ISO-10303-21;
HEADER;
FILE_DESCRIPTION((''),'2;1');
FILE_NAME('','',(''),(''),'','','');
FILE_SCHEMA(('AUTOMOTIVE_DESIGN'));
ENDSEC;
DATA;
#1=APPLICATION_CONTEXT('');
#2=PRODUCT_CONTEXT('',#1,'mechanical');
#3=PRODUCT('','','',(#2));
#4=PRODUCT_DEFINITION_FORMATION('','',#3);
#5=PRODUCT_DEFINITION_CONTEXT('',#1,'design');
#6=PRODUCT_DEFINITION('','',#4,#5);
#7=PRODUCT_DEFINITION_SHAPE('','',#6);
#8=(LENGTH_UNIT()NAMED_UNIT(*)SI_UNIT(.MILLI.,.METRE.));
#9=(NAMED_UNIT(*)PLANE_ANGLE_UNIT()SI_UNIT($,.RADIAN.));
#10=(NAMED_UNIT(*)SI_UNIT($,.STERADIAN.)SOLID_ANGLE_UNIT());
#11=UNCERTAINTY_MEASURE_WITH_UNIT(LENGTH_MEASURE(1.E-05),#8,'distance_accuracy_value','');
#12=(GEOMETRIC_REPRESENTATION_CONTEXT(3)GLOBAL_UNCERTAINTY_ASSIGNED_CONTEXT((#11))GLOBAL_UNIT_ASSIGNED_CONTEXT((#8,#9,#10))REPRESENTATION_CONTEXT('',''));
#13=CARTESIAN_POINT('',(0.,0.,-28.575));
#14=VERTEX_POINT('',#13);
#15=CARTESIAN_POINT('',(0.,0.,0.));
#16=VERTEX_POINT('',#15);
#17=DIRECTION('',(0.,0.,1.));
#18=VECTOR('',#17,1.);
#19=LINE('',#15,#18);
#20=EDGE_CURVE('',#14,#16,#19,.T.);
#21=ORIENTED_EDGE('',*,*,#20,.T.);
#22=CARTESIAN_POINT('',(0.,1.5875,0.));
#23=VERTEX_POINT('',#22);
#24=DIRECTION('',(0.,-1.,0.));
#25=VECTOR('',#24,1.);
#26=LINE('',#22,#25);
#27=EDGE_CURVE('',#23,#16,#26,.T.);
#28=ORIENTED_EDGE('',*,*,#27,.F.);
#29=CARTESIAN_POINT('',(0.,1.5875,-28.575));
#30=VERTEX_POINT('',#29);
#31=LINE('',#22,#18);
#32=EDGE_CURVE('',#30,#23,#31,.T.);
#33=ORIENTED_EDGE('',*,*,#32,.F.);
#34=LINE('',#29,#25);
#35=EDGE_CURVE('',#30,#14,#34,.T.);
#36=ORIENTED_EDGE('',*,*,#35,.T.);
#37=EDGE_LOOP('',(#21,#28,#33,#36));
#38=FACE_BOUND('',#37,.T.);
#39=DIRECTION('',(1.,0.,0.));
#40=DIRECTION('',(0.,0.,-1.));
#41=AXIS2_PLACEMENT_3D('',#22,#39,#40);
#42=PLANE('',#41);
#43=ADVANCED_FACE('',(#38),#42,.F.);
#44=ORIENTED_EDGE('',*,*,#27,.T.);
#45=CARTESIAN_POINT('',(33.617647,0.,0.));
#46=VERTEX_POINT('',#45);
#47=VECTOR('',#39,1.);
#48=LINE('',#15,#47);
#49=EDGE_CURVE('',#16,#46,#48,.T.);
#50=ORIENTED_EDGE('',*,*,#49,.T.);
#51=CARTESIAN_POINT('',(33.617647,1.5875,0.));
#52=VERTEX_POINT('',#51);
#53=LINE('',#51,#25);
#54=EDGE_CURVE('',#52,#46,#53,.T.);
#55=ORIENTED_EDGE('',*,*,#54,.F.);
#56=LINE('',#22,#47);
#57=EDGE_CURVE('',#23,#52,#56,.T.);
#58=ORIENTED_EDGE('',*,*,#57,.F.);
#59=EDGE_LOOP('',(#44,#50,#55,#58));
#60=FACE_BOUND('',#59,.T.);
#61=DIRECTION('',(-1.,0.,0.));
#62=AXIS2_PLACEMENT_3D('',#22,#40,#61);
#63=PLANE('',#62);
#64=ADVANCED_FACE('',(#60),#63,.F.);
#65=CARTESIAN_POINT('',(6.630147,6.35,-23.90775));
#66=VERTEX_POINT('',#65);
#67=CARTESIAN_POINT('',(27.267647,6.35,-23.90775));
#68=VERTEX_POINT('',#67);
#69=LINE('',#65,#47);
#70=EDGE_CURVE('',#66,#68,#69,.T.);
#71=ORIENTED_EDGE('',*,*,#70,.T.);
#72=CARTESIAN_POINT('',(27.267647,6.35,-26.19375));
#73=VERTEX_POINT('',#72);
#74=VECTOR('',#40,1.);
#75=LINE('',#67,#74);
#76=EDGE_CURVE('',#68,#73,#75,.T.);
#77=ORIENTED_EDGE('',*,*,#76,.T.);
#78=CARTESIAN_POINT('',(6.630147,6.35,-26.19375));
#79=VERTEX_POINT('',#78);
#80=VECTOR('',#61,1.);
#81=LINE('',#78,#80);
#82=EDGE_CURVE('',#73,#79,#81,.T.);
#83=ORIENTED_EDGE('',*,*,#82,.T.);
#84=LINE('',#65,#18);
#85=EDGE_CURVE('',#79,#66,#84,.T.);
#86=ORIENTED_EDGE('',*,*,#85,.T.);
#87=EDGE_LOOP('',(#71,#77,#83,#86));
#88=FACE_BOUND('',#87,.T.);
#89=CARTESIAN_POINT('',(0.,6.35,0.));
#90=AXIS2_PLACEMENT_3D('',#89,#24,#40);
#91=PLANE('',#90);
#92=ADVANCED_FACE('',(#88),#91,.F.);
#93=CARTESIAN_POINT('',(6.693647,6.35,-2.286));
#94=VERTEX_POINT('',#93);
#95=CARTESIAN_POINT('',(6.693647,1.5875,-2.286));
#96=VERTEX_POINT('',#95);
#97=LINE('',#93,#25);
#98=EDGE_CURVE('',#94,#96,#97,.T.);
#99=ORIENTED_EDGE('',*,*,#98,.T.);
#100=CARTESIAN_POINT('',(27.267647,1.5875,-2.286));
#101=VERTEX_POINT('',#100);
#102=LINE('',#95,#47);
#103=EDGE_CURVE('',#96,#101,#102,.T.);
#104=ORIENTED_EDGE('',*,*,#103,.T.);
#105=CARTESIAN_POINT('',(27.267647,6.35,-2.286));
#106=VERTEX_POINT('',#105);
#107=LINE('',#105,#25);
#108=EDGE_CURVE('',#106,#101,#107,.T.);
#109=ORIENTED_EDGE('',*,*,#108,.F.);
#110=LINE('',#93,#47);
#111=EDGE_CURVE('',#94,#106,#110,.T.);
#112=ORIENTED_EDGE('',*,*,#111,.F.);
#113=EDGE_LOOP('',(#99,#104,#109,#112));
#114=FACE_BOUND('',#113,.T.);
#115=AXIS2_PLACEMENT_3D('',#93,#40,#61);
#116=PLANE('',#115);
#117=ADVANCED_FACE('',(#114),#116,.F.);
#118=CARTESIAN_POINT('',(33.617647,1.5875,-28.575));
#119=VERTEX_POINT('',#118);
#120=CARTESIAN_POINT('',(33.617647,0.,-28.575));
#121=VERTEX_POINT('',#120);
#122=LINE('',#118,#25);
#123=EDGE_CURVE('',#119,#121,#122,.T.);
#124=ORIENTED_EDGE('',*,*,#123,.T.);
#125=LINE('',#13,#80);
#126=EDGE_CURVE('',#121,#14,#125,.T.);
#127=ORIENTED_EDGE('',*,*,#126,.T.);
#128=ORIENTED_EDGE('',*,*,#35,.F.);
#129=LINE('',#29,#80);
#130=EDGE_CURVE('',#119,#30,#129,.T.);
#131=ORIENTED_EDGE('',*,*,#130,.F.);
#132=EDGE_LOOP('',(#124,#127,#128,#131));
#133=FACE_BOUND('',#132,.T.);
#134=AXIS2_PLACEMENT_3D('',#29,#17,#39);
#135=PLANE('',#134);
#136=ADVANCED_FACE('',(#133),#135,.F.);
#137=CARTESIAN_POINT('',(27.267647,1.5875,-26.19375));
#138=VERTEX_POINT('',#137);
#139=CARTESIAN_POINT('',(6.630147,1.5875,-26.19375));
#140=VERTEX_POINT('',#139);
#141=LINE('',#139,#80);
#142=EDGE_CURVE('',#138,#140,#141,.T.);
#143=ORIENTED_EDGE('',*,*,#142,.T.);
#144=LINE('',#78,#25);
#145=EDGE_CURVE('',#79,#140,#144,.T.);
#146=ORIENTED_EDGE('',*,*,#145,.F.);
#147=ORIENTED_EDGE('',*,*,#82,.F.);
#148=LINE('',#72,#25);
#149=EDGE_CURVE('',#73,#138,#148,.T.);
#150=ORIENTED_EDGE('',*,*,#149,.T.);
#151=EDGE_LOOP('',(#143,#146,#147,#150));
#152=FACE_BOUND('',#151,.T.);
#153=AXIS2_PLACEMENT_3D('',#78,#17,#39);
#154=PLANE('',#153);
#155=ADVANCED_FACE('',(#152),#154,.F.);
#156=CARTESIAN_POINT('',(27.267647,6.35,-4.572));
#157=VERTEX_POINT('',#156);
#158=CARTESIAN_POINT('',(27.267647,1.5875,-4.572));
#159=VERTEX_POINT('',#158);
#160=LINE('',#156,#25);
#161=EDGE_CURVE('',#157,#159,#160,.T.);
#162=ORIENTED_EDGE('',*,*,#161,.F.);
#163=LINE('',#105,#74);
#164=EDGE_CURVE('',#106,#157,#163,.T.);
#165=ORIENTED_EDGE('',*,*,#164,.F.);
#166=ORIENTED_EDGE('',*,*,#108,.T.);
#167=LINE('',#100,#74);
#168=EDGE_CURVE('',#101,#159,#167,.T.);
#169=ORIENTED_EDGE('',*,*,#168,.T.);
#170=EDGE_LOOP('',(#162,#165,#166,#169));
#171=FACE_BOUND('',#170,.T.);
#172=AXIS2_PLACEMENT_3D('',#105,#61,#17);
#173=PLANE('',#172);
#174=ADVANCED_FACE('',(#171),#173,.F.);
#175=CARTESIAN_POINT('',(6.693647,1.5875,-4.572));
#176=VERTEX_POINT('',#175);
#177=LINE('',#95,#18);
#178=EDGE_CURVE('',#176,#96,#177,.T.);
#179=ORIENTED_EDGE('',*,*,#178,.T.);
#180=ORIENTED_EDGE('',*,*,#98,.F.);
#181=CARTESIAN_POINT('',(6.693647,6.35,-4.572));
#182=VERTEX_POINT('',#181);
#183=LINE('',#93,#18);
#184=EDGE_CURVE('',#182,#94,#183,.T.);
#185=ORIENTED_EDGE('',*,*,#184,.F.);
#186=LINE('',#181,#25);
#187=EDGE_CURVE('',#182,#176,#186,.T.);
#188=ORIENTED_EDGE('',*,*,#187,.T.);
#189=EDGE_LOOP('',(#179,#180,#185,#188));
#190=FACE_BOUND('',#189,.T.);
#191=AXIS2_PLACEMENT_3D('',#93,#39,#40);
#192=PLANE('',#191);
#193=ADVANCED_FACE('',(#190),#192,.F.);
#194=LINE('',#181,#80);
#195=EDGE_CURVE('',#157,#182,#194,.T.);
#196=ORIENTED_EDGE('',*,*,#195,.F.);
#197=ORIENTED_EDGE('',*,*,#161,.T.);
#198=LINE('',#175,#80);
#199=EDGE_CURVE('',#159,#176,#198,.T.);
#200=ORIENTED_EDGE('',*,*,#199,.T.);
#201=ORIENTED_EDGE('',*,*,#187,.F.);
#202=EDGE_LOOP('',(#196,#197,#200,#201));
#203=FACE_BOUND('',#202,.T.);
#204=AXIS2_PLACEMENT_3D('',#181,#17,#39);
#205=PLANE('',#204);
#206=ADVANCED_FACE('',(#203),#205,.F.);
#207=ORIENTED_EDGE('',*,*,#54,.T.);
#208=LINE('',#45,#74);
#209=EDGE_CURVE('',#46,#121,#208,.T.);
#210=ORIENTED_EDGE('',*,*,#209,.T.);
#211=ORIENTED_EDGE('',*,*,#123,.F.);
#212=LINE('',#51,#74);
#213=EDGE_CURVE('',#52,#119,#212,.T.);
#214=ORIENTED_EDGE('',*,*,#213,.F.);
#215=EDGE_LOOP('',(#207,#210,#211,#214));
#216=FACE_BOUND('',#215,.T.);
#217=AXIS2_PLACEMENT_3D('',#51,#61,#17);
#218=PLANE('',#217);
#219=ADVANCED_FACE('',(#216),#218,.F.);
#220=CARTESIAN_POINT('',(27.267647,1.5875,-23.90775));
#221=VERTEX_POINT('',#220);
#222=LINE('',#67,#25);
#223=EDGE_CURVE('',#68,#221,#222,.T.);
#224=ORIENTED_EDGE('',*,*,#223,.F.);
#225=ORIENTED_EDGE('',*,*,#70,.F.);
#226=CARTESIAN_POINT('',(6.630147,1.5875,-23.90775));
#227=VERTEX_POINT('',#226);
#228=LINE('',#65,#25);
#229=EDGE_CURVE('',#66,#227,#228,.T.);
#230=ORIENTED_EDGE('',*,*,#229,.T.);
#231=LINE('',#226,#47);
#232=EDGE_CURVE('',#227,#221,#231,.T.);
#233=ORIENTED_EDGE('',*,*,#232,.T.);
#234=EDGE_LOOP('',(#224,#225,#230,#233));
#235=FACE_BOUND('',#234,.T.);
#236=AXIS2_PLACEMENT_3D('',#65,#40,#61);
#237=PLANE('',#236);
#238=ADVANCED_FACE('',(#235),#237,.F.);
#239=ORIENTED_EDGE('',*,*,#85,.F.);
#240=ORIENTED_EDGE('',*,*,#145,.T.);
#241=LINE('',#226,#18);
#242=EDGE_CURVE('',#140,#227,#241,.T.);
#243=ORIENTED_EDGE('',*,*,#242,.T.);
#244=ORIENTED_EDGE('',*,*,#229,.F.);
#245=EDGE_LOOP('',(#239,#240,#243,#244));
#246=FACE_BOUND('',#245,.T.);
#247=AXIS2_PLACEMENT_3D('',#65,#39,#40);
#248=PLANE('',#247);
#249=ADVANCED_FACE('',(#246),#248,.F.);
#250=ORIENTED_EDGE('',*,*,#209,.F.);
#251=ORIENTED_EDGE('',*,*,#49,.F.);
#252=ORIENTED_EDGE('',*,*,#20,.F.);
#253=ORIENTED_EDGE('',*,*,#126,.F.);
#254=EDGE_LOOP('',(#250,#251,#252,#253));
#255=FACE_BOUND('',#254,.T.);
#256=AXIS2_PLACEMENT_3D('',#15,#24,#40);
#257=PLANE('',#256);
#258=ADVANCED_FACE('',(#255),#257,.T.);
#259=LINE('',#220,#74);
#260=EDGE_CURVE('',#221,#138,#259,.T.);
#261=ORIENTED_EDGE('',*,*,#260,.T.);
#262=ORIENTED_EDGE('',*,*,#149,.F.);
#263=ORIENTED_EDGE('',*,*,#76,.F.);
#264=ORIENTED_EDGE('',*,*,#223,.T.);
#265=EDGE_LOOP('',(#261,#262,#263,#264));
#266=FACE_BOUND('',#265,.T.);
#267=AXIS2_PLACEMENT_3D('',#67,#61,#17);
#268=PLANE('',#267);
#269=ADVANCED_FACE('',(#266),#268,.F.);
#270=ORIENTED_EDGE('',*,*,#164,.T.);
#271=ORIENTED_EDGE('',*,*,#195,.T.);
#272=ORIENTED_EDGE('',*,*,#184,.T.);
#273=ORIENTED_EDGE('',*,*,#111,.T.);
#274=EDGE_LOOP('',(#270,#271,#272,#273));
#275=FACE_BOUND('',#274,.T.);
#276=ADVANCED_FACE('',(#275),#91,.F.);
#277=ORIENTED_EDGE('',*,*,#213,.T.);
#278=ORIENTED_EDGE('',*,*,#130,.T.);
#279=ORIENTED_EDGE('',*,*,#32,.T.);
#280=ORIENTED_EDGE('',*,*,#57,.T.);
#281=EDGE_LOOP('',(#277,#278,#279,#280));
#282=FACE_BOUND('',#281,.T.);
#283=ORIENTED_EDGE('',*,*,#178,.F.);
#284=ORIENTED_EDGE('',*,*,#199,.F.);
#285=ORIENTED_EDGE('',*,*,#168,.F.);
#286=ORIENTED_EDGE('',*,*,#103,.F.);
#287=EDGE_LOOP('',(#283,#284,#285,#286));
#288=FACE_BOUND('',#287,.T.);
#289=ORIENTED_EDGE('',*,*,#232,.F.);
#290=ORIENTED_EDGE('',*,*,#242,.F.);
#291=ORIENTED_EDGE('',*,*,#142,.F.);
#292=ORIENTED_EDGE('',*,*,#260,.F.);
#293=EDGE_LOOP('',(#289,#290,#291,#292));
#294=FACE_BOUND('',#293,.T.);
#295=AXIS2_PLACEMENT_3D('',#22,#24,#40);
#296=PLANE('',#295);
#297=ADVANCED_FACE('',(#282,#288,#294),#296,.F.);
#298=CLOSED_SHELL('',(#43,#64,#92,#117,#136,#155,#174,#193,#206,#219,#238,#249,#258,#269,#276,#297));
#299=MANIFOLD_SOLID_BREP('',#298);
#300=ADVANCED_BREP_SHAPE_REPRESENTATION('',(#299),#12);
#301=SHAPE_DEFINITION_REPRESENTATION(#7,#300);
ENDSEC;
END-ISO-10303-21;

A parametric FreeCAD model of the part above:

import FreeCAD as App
import Part
import Sketcher

V = App.Vector
Q = App.Units.Quantity


def add_polygon(sketch, points):
    """Adds a closed chain of lines whose ends are joined by coincident constraints."""
    first, n = sketch.GeometryCount, len(points)
    for a, b in zip(points, points[1:] + points[:1]):
        sketch.addGeometry(Part.LineSegment(App.Vector(*a, 0), App.Vector(*b, 0)), False)
    for i in range(n):
        sketch.addConstraint(Sketcher.Constraint("Coincident", first + i, 2, first + (i + 1) % n, 1))

doc = App.newDocument("Part")
params = doc.addObject("Spreadsheet::Sheet", "Params")
for row, (alias, value) in enumerate([
    ("sketch1_height", "1.125 in"),
    ("pad1_length", "0.0625 in"),
    ("sketch2_width", "0.81 in"),
    ("sketch2_height", "0.09 in"),
    ("sketch2_width2", "0.8125 in"),
    ("pad2_length", "0.1875 in"),
], start=1):
    params.set(f"A{row}", alias)
    params.set(f"B{row}", "=" + value)
    params.setAlias(f"B{row}", alias)

body = doc.addObject("PartDesign::Body", "Body")

sketch1 = body.newObject("Sketcher::SketchObject", "Sketch")
sketch1.AttachmentSupport = (doc.getObject("XZ_Plane"), [""])
sketch1.MapMode = "FlatFace"
add_polygon(sketch1, [(0, -29), (0, 0), (34, 0), (34, -29)])
sketch1.addConstraint([
    Sketcher.Constraint("Vertical", 0),
    Sketcher.Constraint("Horizontal", 1),
    Sketcher.Constraint("Vertical", 2),
    Sketcher.Constraint("Horizontal", 3),
    Sketcher.Constraint("Coincident", 0, 2, -1, 1),
    Sketcher.Constraint("DistanceY", 0, 1, 0, 2, Q("1.125 in")),
    Sketcher.Constraint("DistanceX", 1, 1, 1, 2, Q("33.617647 mm")),
])
sketch1.setExpression("Constraints[9]", "Params.sketch1_height")
pad1 = body.newObject("PartDesign::Pad", "Pad")
pad1.Profile = sketch1
pad1.setExpression("Length", "Params.pad1_length")
pad1.Reversed = True

sketch2 = body.newObject("Sketcher::SketchObject", "Sketch001")
sketch2.AttachmentSupport = (doc.getObject("XZ_Plane"), [""])
sketch2.MapMode = "FlatFace"
sketch2.AttachmentOffset = App.Placement(V(0, 0, -0.0625 * 25.4), App.Rotation())
add_polygon(sketch2, [(6.7, -4.6), (6.7, -2.3), (27.3, -2.3), (27.3, -4.6)])
add_polygon(sketch2, [(6.6, -26.2), (6.6, -23.9), (27.3, -23.9), (27.3, -26.2)])
sketch2.addConstraint([
    Sketcher.Constraint("Vertical", 0),
    Sketcher.Constraint("Horizontal", 1),
    Sketcher.Constraint("Vertical", 2),
    Sketcher.Constraint("Horizontal", 3),
    Sketcher.Constraint("Vertical", 4),
    Sketcher.Constraint("Horizontal", 5),
    Sketcher.Constraint("Vertical", 6),
    Sketcher.Constraint("Horizontal", 7),
    Sketcher.Constraint("Vertical", 2, 2, 5, 2),
    Sketcher.Constraint("Equal", 2, 4),
    Sketcher.Constraint("DistanceX", 1, 1, 1, 2, Q("0.81 in")),
    Sketcher.Constraint("DistanceY", 0, 1, 0, 2, Q("0.09 in")),
    Sketcher.Constraint("DistanceX", 5, 1, 5, 2, Q("0.8125 in")),
    Sketcher.Constraint("DistanceY", 0, 2, -1, 1, Q("0.09 in")),
    Sketcher.Constraint("DistanceY", 6, 2, -1, 1, Q("1.03125 in")),
    Sketcher.Constraint("DistanceX", -1, 1, 0, 2, Q("6.693647 mm")),
])
sketch2.setExpression("Constraints[18]", "Params.sketch2_width")
sketch2.setExpression("Constraints[19]", "Params.sketch2_height")
sketch2.setExpression("Constraints[20]", "Params.sketch2_width2")
pad2 = body.newObject("PartDesign::Pad", "Pad001")
pad2.Profile = sketch2
pad2.setExpression("Length", "Params.pad2_length")
pad2.Reversed = True

doc.recompute()
